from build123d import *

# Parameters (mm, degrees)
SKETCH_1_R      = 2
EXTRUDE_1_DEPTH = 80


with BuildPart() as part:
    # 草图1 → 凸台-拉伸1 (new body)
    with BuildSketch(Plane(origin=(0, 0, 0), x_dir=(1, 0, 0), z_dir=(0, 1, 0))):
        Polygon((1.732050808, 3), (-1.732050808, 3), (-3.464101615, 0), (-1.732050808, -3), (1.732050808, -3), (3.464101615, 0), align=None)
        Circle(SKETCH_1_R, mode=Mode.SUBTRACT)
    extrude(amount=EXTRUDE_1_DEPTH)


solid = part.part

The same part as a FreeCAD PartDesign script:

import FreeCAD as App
import Part
import Sketcher
Q = App.Units.Quantity

doc = App.newDocument("Part")
body = doc.addObject("PartDesign::Body", "Body")

sketch1 = doc.addObject("Sketcher::SketchObject", "Sketch")
body.addObject(sketch1)
sketch1.AttachmentSupport = (doc.XZ_Plane, [""])
sketch1.MapMode = "FlatFace"
sketch1.addGeometry(Part.LineSegment(App.Vector(1.7, -3, 0), App.Vector(-1.7, -3, 0)), False)
sketch1.addGeometry(Part.LineSegment(App.Vector(-1.7, -3, 0), App.Vector(-3.5, 0, 0)), False)
sketch1.addGeometry(Part.LineSegment(App.Vector(-3.5, 0, 0), App.Vector(-1.7, 3, 0)), False)
sketch1.addGeometry(Part.LineSegment(App.Vector(-1.7, 3, 0), App.Vector(1.7, 3, 0)), False)
sketch1.addGeometry(Part.LineSegment(App.Vector(1.7, 3, 0), App.Vector(3.5, 0, 0)), False)
sketch1.addGeometry(Part.LineSegment(App.Vector(3.5, 0, 0), App.Vector(1.7, -3, 0)), False)
sketch1.addGeometry(Part.Circle(App.Vector(0, 0, 0), App.Vector(0, 0, 1), 2), False)
sketch1.addConstraint(Sketcher.Constraint("Coincident", 0, 2, 1, 1))
sketch1.addConstraint(Sketcher.Constraint("Coincident", 1, 2, 2, 1))
sketch1.addConstraint(Sketcher.Constraint("Coincident", 2, 2, 3, 1))
sketch1.addConstraint(Sketcher.Constraint("Coincident", 3, 2, 4, 1))
sketch1.addConstraint(Sketcher.Constraint("Coincident", 4, 2, 5, 1))
sketch1.addConstraint(Sketcher.Constraint("Coincident", 5, 2, 0, 1))
sketch1.addConstraint(Sketcher.Constraint("Horizontal", 0))
sketch1.addConstraint(Sketcher.Constraint("Horizontal", 3))
sketch1.addConstraint(Sketcher.Constraint("Coincident", 6, 3, -1, 1))
sketch1.addConstraint(Sketcher.Constraint("Symmetric", 0, 2, 3, 2, -1, 1))
sketch1.addConstraint(Sketcher.Constraint("Symmetric", 1, 2, 4, 2, -1, 1))
sketch1.addConstraint(Sketcher.Constraint("PointOnObject", 1, 2, -1))
sketch1.addConstraint(Sketcher.Constraint("Parallel", 2, 5))
sketch1.addConstraint(Sketcher.Constraint("Vertical", 0, 2, 2, 2))
sketch1.addConstraint(Sketcher.Constraint("Diameter", 6, Q("4 mm")))
sketch1.addConstraint(Sketcher.Constraint("Angle", 1, Q("120 deg")))
sketch1.addConstraint(Sketcher.Constraint("DistanceY", 0, 2, -1, 1, Q("3 mm")))
sketch1.addConstraint(Sketcher.Constraint("DistanceX", 0, 2, 0, 1, Q("3.464102 mm")))
pad1 = doc.addObject("PartDesign::Pad", "Pad")
body.addObject(pad1)
pad1.Profile = sketch1
pad1.Length = 80
pad1.Reversed = True

doc.recompute()
